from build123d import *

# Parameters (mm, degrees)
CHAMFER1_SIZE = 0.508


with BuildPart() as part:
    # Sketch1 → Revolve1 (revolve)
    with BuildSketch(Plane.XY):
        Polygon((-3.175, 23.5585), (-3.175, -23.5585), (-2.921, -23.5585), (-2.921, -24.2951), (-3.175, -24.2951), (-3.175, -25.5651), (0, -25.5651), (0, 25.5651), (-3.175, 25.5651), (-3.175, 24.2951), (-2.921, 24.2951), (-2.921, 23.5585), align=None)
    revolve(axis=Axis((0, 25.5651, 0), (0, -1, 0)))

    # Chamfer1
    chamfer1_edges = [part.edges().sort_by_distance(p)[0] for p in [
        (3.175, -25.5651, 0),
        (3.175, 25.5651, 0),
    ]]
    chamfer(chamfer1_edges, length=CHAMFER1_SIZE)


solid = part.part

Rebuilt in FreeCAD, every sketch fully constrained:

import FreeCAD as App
import Part
import Sketcher
Q = App.Units.Quantity


def edges_at(feature, points):
    """Names of the edges that pass closest to the given points."""
    edges = feature.Shape.Edges
    near = lambda p: min(range(len(edges)), key=lambda i: edges[i].distToShape(Part.Vertex(*p))[0])
    return sorted({f"Edge{near(p) + 1}" for p in points})

doc = App.newDocument("Part")
params = doc.addObject("Spreadsheet::Sheet", "Params")
for row, (alias, value) in enumerate([
    ("sketch1_width", "0.01 in"),
    ("sketch1_height", "0.05 in"),
    ("sketch1_width2", "0.125 in"),
    ("sketch1_height2", "1.855 in"),
    ("sketch1_height3", "0.029 in"),
    ("revolution_angle", "360 deg"),
    ("chamfer_size", "0.02 in"),
], start=1):
    params.set(f"A{row}", alias)
    params.set(f"B{row}", "=" + value)
    params.setAlias(f"B{row}", alias)

body = doc.addObject("PartDesign::Body", "Body")

sketch1 = doc.addObject("Sketcher::SketchObject", "Sketch")
body.addObject(sketch1)
sketch1.AttachmentSupport = (doc.XY_Plane, [""])
sketch1.MapMode = "FlatFace"
sketch1.addGeometry([
    Part.LineSegment(App.Vector(-3.175, 23.5585, 0), App.Vector(-3.175, -23.5585, 0)),
    Part.LineSegment(App.Vector(-3.175, -23.5585, 0), App.Vector(-2.921, -23.5585, 0)),
    Part.LineSegment(App.Vector(-2.921, -23.5585, 0), App.Vector(-2.921, -24.2951, 0)),
    Part.LineSegment(App.Vector(-2.921, -24.2951, 0), App.Vector(-3.175, -24.2951, 0)),
    Part.LineSegment(App.Vector(-3.175, -24.2951, 0), App.Vector(-3.175, -25.5651, 0)),
    Part.LineSegment(App.Vector(-3.175, -25.5651, 0), App.Vector(0, -25.5651, 0)),
    Part.LineSegment(App.Vector(0, -25.5651, 0), App.Vector(0, 25.5651, 0)),
    Part.LineSegment(App.Vector(0, 25.5651, 0), App.Vector(-3.175, 25.5651, 0)),
    Part.LineSegment(App.Vector(-3.175, 25.5651, 0), App.Vector(-3.175, 24.2951, 0)),
    Part.LineSegment(App.Vector(-3.175, 24.2951, 0), App.Vector(-2.921, 24.2951, 0)),
    Part.LineSegment(App.Vector(-2.921, 24.2951, 0), App.Vector(-2.921, 23.5585, 0)),
    Part.LineSegment(App.Vector(-2.921, 23.5585, 0), App.Vector(-3.175, 23.5585, 0)),
], False)
sketch1.addConstraint([
    Sketcher.Constraint("Coincident", 0, 2, 1, 1),
    Sketcher.Constraint("Coincident", 1, 2, 2, 1),
    Sketcher.Constraint("Coincident", 2, 2, 3, 1),
    Sketcher.Constraint("Coincident", 3, 2, 4, 1),
    Sketcher.Constraint("Coincident", 4, 2, 5, 1),
    Sketcher.Constraint("Coincident", 5, 2, 6, 1),
    Sketcher.Constraint("Coincident", 6, 2, 7, 1),
    Sketcher.Constraint("Coincident", 7, 2, 8, 1),
    Sketcher.Constraint("Coincident", 8, 2, 9, 1),
    Sketcher.Constraint("Coincident", 9, 2, 10, 1),
    Sketcher.Constraint("Coincident", 10, 2, 11, 1),
    Sketcher.Constraint("Coincident", 11, 2, 0, 1),
    Sketcher.Constraint("Vertical", 0),
    Sketcher.Constraint("Horizontal", 1),
    Sketcher.Constraint("Vertical", 2),
    Sketcher.Constraint("Horizontal", 3),
    Sketcher.Constraint("Vertical", 4),
    Sketcher.Constraint("Horizontal", 5),
    Sketcher.Constraint("Vertical", 6),
    Sketcher.Constraint("Horizontal", 7),
    Sketcher.Constraint("Vertical", 8),
    Sketcher.Constraint("Horizontal", 9),
    Sketcher.Constraint("Vertical", 10),
    Sketcher.Constraint("Horizontal", 11),
    Sketcher.Constraint("Symmetric", 5, 2, 6, 2, -1, 1),
    Sketcher.Constraint("Symmetric", 3, 2, 8, 2, -1),
    Sketcher.Constraint("Symmetric", 1, 2, 10, 2, -1),
    Sketcher.Constraint("Vertical", 0, 2, 3, 2),
    Sketcher.Constraint("DistanceX", 1, 1, 1, 2, Q("0.01 in")),
    Sketcher.Constraint("DistanceY", 4, 2, 4, 1, Q("0.05 in")),
    Sketcher.Constraint("DistanceX", 5, 1, 5, 2, Q("0.125 in")),
    Sketcher.Constraint("DistanceY", 0, 2, 0, 1, Q("1.855 in")),
    Sketcher.Constraint("DistanceY", 2, 2, 2, 1, Q("0.029 in")),
])
sketch1.setExpression("Constraints[28]", "Params.sketch1_width")
sketch1.setExpression("Constraints[29]", "Params.sketch1_height")
sketch1.setExpression("Constraints[30]", "Params.sketch1_width2")
sketch1.setExpression("Constraints[31]", "Params.sketch1_height2")
sketch1.setExpression("Constraints[32]", "Params.sketch1_height3")
revolution = doc.addObject("PartDesign::Revolution", "Revolution")
body.addObject(revolution)
revolution.Profile = sketch1
revolution.ReferenceAxis = (sketch1, ["V_Axis"])
revolution.setExpression("Angle", "Params.revolution_angle")
doc.recompute()

chamfer = doc.addObject("PartDesign::Chamfer", "Chamfer")
body.addObject(chamfer)
chamfer.Base = (revolution, edges_at(revolution, [(3.175, -25.565, 0), (3.175, 25.565, 0)]))
chamfer.setExpression("Size", "Params.chamfer_size")

doc.recompute()
